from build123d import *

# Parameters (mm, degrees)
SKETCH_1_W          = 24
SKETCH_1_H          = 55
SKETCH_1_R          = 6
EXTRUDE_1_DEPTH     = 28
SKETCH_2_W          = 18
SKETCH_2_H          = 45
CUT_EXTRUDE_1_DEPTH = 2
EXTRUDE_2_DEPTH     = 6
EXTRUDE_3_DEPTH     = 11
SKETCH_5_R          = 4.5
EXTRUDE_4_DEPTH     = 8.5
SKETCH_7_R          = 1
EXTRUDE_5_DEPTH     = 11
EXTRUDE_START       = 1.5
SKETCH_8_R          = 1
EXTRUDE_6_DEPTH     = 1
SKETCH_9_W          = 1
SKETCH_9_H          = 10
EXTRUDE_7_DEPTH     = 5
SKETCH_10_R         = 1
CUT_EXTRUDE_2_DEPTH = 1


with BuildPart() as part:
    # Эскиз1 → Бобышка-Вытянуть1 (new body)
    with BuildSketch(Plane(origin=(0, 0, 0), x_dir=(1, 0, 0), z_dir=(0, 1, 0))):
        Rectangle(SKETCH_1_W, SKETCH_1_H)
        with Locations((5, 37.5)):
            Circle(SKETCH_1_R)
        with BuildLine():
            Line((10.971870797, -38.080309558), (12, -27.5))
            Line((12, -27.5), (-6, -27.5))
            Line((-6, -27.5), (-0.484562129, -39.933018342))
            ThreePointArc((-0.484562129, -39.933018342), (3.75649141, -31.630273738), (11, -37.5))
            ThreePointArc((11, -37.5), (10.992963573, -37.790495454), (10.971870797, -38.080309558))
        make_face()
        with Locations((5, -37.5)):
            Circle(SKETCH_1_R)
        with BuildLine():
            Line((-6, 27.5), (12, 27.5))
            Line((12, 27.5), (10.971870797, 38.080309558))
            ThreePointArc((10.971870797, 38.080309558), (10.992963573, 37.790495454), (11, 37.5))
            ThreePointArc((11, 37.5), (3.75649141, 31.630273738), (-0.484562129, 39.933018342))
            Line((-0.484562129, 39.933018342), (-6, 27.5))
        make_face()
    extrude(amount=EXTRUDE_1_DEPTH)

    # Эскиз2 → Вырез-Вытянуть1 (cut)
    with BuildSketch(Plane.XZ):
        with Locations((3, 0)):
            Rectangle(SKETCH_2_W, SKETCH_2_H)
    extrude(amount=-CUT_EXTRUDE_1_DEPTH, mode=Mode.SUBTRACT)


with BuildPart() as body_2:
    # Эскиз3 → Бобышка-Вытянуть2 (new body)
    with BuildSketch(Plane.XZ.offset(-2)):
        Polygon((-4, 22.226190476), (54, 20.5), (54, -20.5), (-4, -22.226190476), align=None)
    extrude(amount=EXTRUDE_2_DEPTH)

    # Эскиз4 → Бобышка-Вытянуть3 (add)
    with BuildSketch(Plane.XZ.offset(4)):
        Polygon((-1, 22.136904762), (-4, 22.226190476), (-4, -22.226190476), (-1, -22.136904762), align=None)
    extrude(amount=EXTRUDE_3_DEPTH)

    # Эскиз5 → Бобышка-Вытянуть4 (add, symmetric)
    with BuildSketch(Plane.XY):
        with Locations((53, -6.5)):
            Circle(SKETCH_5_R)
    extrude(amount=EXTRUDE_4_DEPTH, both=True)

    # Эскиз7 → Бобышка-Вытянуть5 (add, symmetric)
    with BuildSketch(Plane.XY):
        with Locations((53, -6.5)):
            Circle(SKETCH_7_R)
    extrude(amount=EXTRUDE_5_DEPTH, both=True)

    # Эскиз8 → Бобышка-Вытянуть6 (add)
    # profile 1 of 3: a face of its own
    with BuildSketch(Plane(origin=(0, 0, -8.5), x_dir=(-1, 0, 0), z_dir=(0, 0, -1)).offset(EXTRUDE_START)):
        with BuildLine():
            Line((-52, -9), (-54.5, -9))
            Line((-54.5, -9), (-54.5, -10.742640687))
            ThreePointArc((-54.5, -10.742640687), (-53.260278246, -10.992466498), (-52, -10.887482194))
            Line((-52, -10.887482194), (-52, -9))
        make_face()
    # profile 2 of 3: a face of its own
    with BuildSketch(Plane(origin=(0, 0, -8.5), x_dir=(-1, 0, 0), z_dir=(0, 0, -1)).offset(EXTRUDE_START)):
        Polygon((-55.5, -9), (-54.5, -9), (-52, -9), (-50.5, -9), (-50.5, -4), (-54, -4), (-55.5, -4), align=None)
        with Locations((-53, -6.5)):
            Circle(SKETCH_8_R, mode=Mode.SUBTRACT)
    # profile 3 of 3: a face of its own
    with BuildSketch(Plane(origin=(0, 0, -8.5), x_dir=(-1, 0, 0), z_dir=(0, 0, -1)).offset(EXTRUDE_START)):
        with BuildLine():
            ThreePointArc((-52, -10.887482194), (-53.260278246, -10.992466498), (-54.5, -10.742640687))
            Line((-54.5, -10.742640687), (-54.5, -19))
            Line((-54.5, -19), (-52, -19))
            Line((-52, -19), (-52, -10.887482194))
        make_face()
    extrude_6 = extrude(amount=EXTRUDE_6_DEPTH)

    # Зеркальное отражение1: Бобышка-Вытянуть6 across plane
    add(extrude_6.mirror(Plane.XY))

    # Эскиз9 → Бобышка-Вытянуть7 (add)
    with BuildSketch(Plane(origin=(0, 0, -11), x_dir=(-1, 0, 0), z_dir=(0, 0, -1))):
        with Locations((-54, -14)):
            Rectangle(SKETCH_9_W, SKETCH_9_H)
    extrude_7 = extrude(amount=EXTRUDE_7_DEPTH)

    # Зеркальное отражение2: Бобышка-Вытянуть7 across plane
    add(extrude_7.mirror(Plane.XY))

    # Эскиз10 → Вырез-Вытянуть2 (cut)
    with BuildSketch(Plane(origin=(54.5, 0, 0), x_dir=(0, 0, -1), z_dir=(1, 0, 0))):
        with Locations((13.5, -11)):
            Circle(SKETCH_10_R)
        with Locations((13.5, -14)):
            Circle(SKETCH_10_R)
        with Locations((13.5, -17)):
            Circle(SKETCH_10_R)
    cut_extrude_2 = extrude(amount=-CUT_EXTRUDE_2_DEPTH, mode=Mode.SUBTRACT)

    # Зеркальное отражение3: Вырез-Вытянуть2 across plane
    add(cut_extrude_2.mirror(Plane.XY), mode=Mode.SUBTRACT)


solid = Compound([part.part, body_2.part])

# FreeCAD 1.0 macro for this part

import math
import FreeCAD as App
import Part
import Sketcher

V = App.Vector

doc = App.newDocument("Part")
body = doc.addObject("PartDesign::Body", "Body")

sketch1 = body.newObject("Sketcher::SketchObject", "Sketch")
sketch1.AttachmentSupport = (doc.getObject("XZ_Plane"), [""])
sketch1.MapMode = "FlatFace"
sketch1.addGeometry([
    Part.LineSegment(V(-12, -28, 0), V(-12, 28, 0)),
    Part.LineSegment(V(-12, 28, 0), V(-6, 28, 0)),
    Part.LineSegment(V(-6, 28, 0), V(0, 40, 0)),
    Part.ArcOfCircle(Part.Circle(V(5, 38, 0), V(0, 0, 1), 6), math.radians(6), math.radians(156)),
    Part.LineSegment(V(11, 38, 0), V(12, 28, 0)),
    Part.LineSegment(V(12, 28, 0), V(12, -28, 0)),
    Part.LineSegment(V(12, -28, 0), V(11, -38, 0)),
    Part.ArcOfCircle(Part.Circle(V(5, -38, 0), V(0, 0, 1), 6), math.radians(-156), math.radians(-6)),
    Part.LineSegment(V(0, -40, 0), V(-6, -28, 0)),
    Part.LineSegment(V(-6, -28, 0), V(-12, -28, 0)),
], False)
sketch1.addConstraint([
    Sketcher.Constraint("Coincident", 0, 2, 1, 1),
    Sketcher.Constraint("Coincident", 1, 2, 2, 1),
    Sketcher.Constraint("Tangent", 2, 2, 3, 2),
    Sketcher.Constraint("Tangent", 3, 1, 4, 1),
    Sketcher.Constraint("Coincident", 4, 2, 5, 1),
    Sketcher.Constraint("Coincident", 5, 2, 6, 1),
    Sketcher.Constraint("Tangent", 6, 2, 7, 2),
    Sketcher.Constraint("Tangent", 7, 1, 8, 1),
    Sketcher.Constraint("Coincident", 8, 2, 9, 1),
    Sketcher.Constraint("Coincident", 9, 2, 0, 1),
    Sketcher.Constraint("Vertical", 0),
    Sketcher.Constraint("Horizontal", 1),
    Sketcher.Constraint("Vertical", 5),
    Sketcher.Constraint("Horizontal", 9),
    Sketcher.Constraint("Equal", 3, 7),
    Sketcher.Constraint("Symmetric", 0, 2, 5, 2, -1, 1),
    Sketcher.Constraint("Symmetric", 3, 3, 7, 3, -1),
    Sketcher.Constraint("Symmetric", 1, 2, 8, 2, -1),
    Sketcher.Constraint("Horizontal", 1, 2, 4, 2),
    Sketcher.Constraint("Radius", 3, 6.0),
    Sketcher.Constraint("DistanceX", 1, 1, 1, 2, 6.0),
    Sketcher.Constraint("DistanceY", 0, 1, 0, 2, 55.0),
    Sketcher.Constraint("DistanceX", -1, 1, 3, 3, 5.0),
    Sketcher.Constraint("DistanceX", 0, 2, -1, 1, 12.0),
    Sketcher.Constraint("DistanceY", 7, 3, 3, 3, 75.0),
])
pad1 = body.newObject("PartDesign::Pad", "Pad")
pad1.Profile = sketch1
pad1.Length = 28
pad1.Reversed = True

sketch2 = body.newObject("Sketcher::SketchObject", "Sketch001")
sketch2.AttachmentSupport = (doc.getObject("XZ_Plane"), [""])
sketch2.MapMode = "FlatFace"
sketch2.addGeometry([
    Part.LineSegment(V(-6, 22, 0), V(-6, -22, 0)),
    Part.LineSegment(V(-6, -22, 0), V(12, -22, 0)),
    Part.LineSegment(V(12, -22, 0), V(12, 22, 0)),
    Part.LineSegment(V(12, 22, 0), V(-6, 22, 0)),
], False)
sketch2.addConstraint([
    Sketcher.Constraint("Coincident", 0, 2, 1, 1),
    Sketcher.Constraint("Coincident", 1, 2, 2, 1),
    Sketcher.Constraint("Coincident", 2, 2, 3, 1),
    Sketcher.Constraint("Coincident", 3, 2, 0, 1),
    Sketcher.Constraint("Vertical", 0),
    Sketcher.Constraint("Horizontal", 1),
    Sketcher.Constraint("Vertical", 2),
    Sketcher.Constraint("Horizontal", 3),
    Sketcher.Constraint("DistanceX", 1, 1, 1, 2, 18.0),
    Sketcher.Constraint("DistanceY", 0, 2, 0, 1, 45.0),
    Sketcher.Constraint("DistanceX", 0, 2, -1, 1, 6.0),
    Sketcher.Constraint("DistanceY", 0, 2, -1, 1, 22.5),
])
pocket1 = body.newObject("PartDesign::Pocket", "Pocket")
pocket1.Profile = sketch2
pocket1.Length = 2
body2 = doc.addObject("PartDesign::Body", "Body001")

sketch3 = body2.newObject("Sketcher::SketchObject", "Sketch002")
sketch3.AttachmentSupport = (doc.getObject("XZ_Plane001"), [""])
sketch3.MapMode = "FlatFace"
sketch3.AttachmentOffset = App.Placement(V(0, 0, -2), App.Rotation())
sketch3.addGeometry([
    Part.LineSegment(V(54, 20, 0), V(-4, 22, 0)),
    Part.LineSegment(V(-4, 22, 0), V(-4, -22, 0)),
    Part.LineSegment(V(-4, -22, 0), V(54, -20, 0)),
    Part.LineSegment(V(54, -20, 0), V(54, 20, 0)),
], False)
sketch3.addConstraint([
    Sketcher.Constraint("Coincident", 0, 2, 1, 1),
    Sketcher.Constraint("Coincident", 1, 2, 2, 1),
    Sketcher.Constraint("Coincident", 2, 2, 3, 1),
    Sketcher.Constraint("Coincident", 3, 2, 0, 1),
    Sketcher.Constraint("Vertical", 1),
    Sketcher.Constraint("Vertical", 3),
    Sketcher.Constraint("Equal", 0, 2),
    Sketcher.Constraint("DistanceY", 3, 1, 3, 2, 41.0),
    Sketcher.Constraint("DistanceX", 0, 2, -1, 1, 4.0),
    Sketcher.Constraint("DistanceX", -1, 1, 2, 2, 54.0),
    Sketcher.Constraint("DistanceY", 2, 2, -1, 1, 20.5),
    Sketcher.Constraint("DistanceY", 1, 2, 1, 1, 44.452381),
])
pad2 = body2.newObject("PartDesign::Pad", "Pad001")
pad2.Profile = sketch3
pad2.Length = 6

sketch4 = body2.newObject("Sketcher::SketchObject", "Sketch003")
sketch4.AttachmentSupport = (doc.getObject("XZ_Plane001"), [""])
sketch4.MapMode = "FlatFace"
sketch4.AttachmentOffset = App.Placement(V(0, 0, 4), App.Rotation())
sketch4.addGeometry([
    Part.LineSegment(V(-1, 22.1, 0), V(-4, 22.2, 0)),
    Part.LineSegment(V(-4, 22.2, 0), V(-4, -22.2, 0)),
    Part.LineSegment(V(-4, -22.2, 0), V(-1, -22.1, 0)),
    Part.LineSegment(V(-1, -22.1, 0), V(-1, 22.1, 0)),
], False)
sketch4.addConstraint([
    Sketcher.Constraint("Coincident", 0, 2, 1, 1),
    Sketcher.Constraint("Coincident", 1, 2, 2, 1),
    Sketcher.Constraint("Coincident", 2, 2, 3, 1),
    Sketcher.Constraint("Coincident", 3, 2, 0, 1),
    Sketcher.Constraint("Vertical", 1),
    Sketcher.Constraint("Vertical", 3),
    Sketcher.Constraint("Equal", 0, 2),
    Sketcher.Constraint("DistanceX", 0, 2, -1, 1, 4.0),
    Sketcher.Constraint("DistanceX", 2, 2, -1, 1, 1.0),
    Sketcher.Constraint("DistanceY", 1, 2, 1, 1, 44.452381),
    Sketcher.Constraint("DistanceY", 3, 1, 3, 2, 44.27381),
    Sketcher.Constraint("DistanceY", -1, 1, 0, 2, 22.22619),
])
pad3 = body2.newObject("PartDesign::Pad", "Pad002")
pad3.Profile = sketch4
pad3.Length = 11

sketch5 = body2.newObject("Sketcher::SketchObject", "Sketch004")
sketch5.AttachmentSupport = (doc.getObject("XY_Plane001"), [""])
sketch5.MapMode = "FlatFace"
sketch5.addGeometry(Part.Circle(V(53, -6.5, 0), V(0, 0, 1), 4.5), False)
sketch5.addConstraint([
    Sketcher.Constraint("Diameter", 0, 9.0),
    Sketcher.Constraint("DistanceX", -1, 1, 0, 3, 53.0),
    Sketcher.Constraint("DistanceY", 0, 3, -1, 1, 6.5),
])
pad4 = body2.newObject("PartDesign::Pad", "Pad003")
pad4.Profile = sketch5
pad4.Length = 17
pad4.Midplane = True

sketch6 = body2.newObject("Sketcher::SketchObject", "Sketch005")
sketch6.AttachmentSupport = (doc.getObject("XY_Plane001"), [""])
sketch6.MapMode = "FlatFace"
sketch6.addGeometry(Part.Circle(V(53, -6.5, 0), V(0, 0, 1), 1), False)
sketch6.addConstraint([
    Sketcher.Constraint("Diameter", 0, 2.0),
    Sketcher.Constraint("DistanceX", -1, 1, 0, 3, 53.0),
    Sketcher.Constraint("DistanceY", 0, 3, -1, 1, 6.5),
])
pad5 = body2.newObject("PartDesign::Pad", "Pad004")
pad5.Profile = sketch6
pad5.Length = 22
pad5.Midplane = True

sketch7 = body2.newObject("Sketcher::SketchObject", "Sketch006")
sketch7.AttachmentSupport = (doc.getObject("XY_Plane001"), [""])
sketch7.MapMode = "FlatFace"
sketch7.AttachmentOffset = App.Placement(V(0, 0, -10), App.Rotation())
sketch7.addGeometry([
    Part.LineSegment(V(54.5, -9, 0), V(54.5, -19, 0)),
    Part.LineSegment(V(54.5, -19, 0), V(52, -19, 0)),
    Part.LineSegment(V(52, -19, 0), V(52, -9, 0)),
    Part.LineSegment(V(52, -9, 0), V(50.5, -9, 0)),
    Part.LineSegment(V(50.5, -9, 0), V(50.5, -4, 0)),
    Part.LineSegment(V(50.5, -4, 0), V(55.5, -4, 0)),
    Part.LineSegment(V(55.5, -4, 0), V(55.5, -9, 0)),
    Part.LineSegment(V(55.5, -9, 0), V(54.5, -9, 0)),
    Part.Circle(V(53, -6.5, 0), V(0, 0, 1), 1),
], False)
sketch7.addConstraint([
    Sketcher.Constraint("Coincident", 0, 2, 1, 1),
    Sketcher.Constraint("Coincident", 1, 2, 2, 1),
    Sketcher.Constraint("Coincident", 2, 2, 3, 1),
    Sketcher.Constraint("Coincident", 3, 2, 4, 1),
    Sketcher.Constraint("Coincident", 4, 2, 5, 1),
    Sketcher.Constraint("Coincident", 5, 2, 6, 1),
    Sketcher.Constraint("Coincident", 6, 2, 7, 1),
    Sketcher.Constraint("Coincident", 7, 2, 0, 1),
    Sketcher.Constraint("Vertical", 0),
    Sketcher.Constraint("Horizontal", 1),
    Sketcher.Constraint("Vertical", 2),
    Sketcher.Constraint("Horizontal", 3),
    Sketcher.Constraint("Vertical", 4),
    Sketcher.Constraint("Horizontal", 5),
    Sketcher.Constraint("Vertical", 6),
    Sketcher.Constraint("Horizontal", 7),
    Sketcher.Constraint("Horizontal", 3, 2, 6, 2),
    Sketcher.Constraint("Equal", 5, 4),
    Sketcher.Constraint("Diameter", 8, 2.0),
    Sketcher.Constraint("DistanceX", 5, 1, 5, 2, 5.0),
    Sketcher.Constraint("DistanceX", 7, 2, 7, 1, 1.0),
    Sketcher.Constraint("DistanceY", 0, 2, 0, 1, 10.0),
    Sketcher.Constraint("DistanceX", 1, 2, 1, 1, 2.5),
    Sketcher.Constraint("DistanceX", -1, 1, 8, 3, 53.0),
    Sketcher.Constraint("DistanceY", 0, 2, -1, 1, 19.0),
    Sketcher.Constraint("DistanceX", -1, 1, 1, 2, 52.0),
    Sketcher.Constraint("DistanceY", 8, 3, -1, 1, 6.5),
])
pad6 = body2.newObject("PartDesign::Pad", "Pad005")
pad6.Profile = sketch7
pad6.Length = 1
pad6.Reversed = True
doc.recompute()

mirrored = body2.newObject("PartDesign::Mirrored", "Mirrored")
mirrored.Originals = [pad6]
mirrored.MirrorPlane = (doc.getObject("XY_Plane001"), [""])
body2.Tip = mirrored

sketch8 = body2.newObject("Sketcher::SketchObject", "Sketch007")
sketch8.AttachmentSupport = (doc.getObject("XY_Plane001"), [""])
sketch8.MapMode = "FlatFace"
sketch8.AttachmentOffset = App.Placement(V(0, 0, -11), App.Rotation())
sketch8.addGeometry([
    Part.LineSegment(V(54.5, -9, 0), V(54.5, -19, 0)),
    Part.LineSegment(V(54.5, -19, 0), V(53.5, -19, 0)),
    Part.LineSegment(V(53.5, -19, 0), V(53.5, -9, 0)),
    Part.LineSegment(V(53.5, -9, 0), V(54.5, -9, 0)),
], False)
sketch8.addConstraint([
    Sketcher.Constraint("Coincident", 0, 2, 1, 1),
    Sketcher.Constraint("Coincident", 1, 2, 2, 1),
    Sketcher.Constraint("Coincident", 2, 2, 3, 1),
    Sketcher.Constraint("Coincident", 3, 2, 0, 1),
    Sketcher.Constraint("Vertical", 0),
    Sketcher.Constraint("Horizontal", 1),
    Sketcher.Constraint("Vertical", 2),
    Sketcher.Constraint("Horizontal", 3),
    Sketcher.Constraint("DistanceX", 1, 2, 1, 1, 1.0),
    Sketcher.Constraint("DistanceY", 0, 2, 0, 1, 10.0),
    Sketcher.Constraint("DistanceY", 0, 2, -1, 1, 19.0),
    Sketcher.Constraint("DistanceX", -1, 1, 0, 2, 54.5),
])
pad7 = body2.newObject("PartDesign::Pad", "Pad006")
pad7.Profile = sketch8
pad7.Length = 5
pad7.Reversed = True
doc.recompute()

mirrored2 = body2.newObject("PartDesign::Mirrored", "Mirrored001")
mirrored2.Originals = [pad7]
mirrored2.MirrorPlane = (doc.getObject("XY_Plane001"), [""])
body2.Tip = mirrored2

sketch9 = body2.newObject("Sketcher::SketchObject", "Sketch008")
sketch9.AttachmentSupport = (doc.getObject("YZ_Plane001"), [""])
sketch9.MapMode = "FlatFace"
sketch9.AttachmentOffset = App.Placement(V(0, 0, 54.5), App.Rotation())
sketch9.addGeometry([
    Part.Circle(V(-11, -13.5, 0), V(0, 0, 1), 1),
    Part.Circle(V(-14, -13.5, 0), V(0, 0, 1), 1),
    Part.Circle(V(-17, -13.5, 0), V(0, 0, 1), 1),
], False)
sketch9.addConstraint([
    Sketcher.Constraint("Equal", 0, 1),
    Sketcher.Constraint("Equal", 1, 2),
    Sketcher.Constraint("Horizontal", 0, 3, 1, 3),
    Sketcher.Constraint("Horizontal", 1, 3, 2, 3),
    Sketcher.Constraint("Diameter", 0, 2.0),
    Sketcher.Constraint("DistanceX", 0, 3, -1, 1, 11.0),
    Sketcher.Constraint("DistanceX", 1, 3, -1, 1, 14.0),
    Sketcher.Constraint("DistanceX", 2, 3, -1, 1, 17.0),
    Sketcher.Constraint("DistanceY", 0, 3, -1, 1, 13.5),
])
pocket2 = body2.newObject("PartDesign::Pocket", "Pocket001")
pocket2.Profile = sketch9
pocket2.Length = 1
doc.recompute()

mirrored3 = body2.newObject("PartDesign::Mirrored", "Mirrored002")
mirrored3.Originals = [pocket2]
mirrored3.MirrorPlane = (doc.getObject("XY_Plane001"), [""])
body2.Tip = mirrored3

doc.recompute()
